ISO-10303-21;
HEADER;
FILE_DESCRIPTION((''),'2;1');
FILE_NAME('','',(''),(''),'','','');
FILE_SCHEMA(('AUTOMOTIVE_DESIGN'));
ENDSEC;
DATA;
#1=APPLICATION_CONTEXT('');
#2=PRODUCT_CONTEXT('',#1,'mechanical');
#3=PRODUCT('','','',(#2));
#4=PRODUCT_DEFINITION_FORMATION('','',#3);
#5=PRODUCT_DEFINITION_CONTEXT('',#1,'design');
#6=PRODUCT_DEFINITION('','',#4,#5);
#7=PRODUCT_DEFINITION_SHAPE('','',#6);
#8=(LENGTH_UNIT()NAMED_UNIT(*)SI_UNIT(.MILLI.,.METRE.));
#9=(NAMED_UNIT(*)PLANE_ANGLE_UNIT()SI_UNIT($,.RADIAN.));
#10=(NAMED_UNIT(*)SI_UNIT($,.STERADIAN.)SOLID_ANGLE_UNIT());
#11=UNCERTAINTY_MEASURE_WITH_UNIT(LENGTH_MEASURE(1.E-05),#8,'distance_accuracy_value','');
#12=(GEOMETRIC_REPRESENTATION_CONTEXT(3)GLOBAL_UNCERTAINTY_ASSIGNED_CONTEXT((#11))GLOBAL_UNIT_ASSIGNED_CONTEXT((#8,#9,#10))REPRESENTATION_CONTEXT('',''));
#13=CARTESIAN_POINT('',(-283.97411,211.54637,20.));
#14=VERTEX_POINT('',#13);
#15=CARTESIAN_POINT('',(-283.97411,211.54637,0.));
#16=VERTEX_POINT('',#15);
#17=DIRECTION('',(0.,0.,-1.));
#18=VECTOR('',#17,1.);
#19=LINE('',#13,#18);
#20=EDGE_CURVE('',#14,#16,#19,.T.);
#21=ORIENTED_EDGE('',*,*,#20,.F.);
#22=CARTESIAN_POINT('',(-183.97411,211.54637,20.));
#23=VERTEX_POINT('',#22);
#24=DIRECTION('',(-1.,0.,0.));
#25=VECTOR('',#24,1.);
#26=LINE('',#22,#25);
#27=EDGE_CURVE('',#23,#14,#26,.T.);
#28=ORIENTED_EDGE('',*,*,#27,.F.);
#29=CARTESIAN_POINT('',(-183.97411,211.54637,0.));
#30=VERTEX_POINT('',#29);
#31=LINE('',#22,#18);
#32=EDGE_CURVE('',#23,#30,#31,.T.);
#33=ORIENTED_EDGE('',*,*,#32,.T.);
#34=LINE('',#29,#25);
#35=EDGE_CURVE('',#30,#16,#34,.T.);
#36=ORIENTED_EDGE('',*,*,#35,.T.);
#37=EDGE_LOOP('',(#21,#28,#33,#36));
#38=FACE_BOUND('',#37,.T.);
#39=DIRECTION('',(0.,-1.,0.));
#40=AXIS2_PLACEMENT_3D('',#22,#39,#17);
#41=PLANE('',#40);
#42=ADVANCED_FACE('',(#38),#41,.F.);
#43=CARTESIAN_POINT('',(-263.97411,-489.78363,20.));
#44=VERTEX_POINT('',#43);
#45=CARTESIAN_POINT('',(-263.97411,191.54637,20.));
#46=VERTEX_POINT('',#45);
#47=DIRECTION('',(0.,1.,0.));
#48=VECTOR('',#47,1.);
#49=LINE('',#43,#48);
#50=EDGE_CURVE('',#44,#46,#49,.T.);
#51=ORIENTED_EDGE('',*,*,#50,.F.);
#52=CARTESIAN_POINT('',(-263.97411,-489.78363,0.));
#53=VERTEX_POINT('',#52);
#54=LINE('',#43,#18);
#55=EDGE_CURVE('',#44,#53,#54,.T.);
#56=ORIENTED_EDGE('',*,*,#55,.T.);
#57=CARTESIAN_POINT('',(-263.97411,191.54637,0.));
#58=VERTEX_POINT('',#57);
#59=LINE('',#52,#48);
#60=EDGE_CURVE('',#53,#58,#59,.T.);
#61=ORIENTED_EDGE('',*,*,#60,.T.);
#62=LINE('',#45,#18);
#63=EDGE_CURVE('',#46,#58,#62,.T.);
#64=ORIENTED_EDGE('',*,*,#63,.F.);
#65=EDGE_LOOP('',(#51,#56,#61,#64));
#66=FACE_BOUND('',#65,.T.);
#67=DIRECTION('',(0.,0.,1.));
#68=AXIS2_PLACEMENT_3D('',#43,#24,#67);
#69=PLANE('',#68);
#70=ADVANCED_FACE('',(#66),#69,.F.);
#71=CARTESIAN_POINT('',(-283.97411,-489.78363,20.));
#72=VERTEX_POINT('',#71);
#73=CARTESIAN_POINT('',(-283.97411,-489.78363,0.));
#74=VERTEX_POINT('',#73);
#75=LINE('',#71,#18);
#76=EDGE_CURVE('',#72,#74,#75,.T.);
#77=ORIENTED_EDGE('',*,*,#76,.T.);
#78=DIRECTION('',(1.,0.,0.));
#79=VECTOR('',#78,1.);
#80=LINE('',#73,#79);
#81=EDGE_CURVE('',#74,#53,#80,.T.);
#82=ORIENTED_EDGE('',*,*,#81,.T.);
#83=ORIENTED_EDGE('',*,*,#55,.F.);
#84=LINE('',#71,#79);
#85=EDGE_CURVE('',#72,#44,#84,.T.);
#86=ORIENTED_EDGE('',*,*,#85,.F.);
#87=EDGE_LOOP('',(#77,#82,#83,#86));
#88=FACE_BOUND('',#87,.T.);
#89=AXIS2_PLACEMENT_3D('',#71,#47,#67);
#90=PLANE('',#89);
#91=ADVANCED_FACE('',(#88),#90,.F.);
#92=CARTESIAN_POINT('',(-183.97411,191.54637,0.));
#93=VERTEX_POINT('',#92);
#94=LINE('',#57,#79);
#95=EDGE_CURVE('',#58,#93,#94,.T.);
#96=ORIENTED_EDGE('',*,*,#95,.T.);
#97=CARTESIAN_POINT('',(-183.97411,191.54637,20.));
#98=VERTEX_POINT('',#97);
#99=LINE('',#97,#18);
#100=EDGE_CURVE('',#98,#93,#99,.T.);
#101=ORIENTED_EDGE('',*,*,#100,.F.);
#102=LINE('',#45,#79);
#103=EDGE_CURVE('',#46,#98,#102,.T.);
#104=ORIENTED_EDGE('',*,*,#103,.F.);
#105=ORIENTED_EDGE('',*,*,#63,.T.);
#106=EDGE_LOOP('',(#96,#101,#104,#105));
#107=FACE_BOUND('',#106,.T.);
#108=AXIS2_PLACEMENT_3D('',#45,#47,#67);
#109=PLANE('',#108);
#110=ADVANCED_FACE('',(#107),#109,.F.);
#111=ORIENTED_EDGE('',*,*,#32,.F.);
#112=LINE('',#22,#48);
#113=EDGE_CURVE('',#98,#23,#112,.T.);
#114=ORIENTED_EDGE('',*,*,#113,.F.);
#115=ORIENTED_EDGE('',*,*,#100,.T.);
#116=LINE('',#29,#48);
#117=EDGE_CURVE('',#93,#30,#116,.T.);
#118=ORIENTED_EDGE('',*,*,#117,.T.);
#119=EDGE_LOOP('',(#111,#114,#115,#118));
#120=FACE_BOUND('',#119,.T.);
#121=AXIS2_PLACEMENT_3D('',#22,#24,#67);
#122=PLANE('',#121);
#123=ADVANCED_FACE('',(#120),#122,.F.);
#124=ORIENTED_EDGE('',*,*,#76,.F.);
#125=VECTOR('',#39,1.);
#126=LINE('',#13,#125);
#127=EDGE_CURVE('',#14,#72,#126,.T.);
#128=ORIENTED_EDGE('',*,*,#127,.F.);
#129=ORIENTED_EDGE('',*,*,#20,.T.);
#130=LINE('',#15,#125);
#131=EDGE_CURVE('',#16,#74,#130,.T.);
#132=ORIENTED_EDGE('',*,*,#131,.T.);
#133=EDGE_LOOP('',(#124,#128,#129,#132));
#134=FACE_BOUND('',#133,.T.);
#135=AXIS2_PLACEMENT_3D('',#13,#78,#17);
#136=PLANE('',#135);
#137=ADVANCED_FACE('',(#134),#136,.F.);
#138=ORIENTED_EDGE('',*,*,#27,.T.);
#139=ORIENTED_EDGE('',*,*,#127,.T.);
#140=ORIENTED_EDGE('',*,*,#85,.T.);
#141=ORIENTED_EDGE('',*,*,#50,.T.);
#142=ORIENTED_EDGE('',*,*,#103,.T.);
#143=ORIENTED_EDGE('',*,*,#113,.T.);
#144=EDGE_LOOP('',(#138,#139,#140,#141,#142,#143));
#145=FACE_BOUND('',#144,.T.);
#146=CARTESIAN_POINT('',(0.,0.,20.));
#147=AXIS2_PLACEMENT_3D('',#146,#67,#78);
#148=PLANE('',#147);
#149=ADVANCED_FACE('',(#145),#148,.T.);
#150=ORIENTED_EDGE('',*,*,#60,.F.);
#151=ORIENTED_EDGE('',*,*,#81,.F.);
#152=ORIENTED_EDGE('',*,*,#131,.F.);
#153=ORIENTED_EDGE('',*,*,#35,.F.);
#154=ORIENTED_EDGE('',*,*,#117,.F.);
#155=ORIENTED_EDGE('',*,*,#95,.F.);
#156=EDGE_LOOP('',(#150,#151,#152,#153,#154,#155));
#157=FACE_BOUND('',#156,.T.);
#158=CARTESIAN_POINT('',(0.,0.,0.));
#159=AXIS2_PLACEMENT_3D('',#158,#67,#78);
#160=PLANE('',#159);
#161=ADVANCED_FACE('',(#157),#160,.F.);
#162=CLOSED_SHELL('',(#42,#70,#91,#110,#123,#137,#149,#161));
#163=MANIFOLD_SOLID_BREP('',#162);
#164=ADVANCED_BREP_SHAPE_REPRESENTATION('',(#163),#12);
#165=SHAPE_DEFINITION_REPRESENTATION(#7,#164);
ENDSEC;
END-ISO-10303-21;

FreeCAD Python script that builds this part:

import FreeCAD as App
import Part
import Sketcher

V = App.Vector


def add_polygon(sketch, points):
    """Adds a closed chain of lines whose ends are joined by coincident constraints."""
    first, n = sketch.GeometryCount, len(points)
    for a, b in zip(points, points[1:] + points[:1]):
        sketch.addGeometry(Part.LineSegment(App.Vector(*a, 0), App.Vector(*b, 0)), False)
    for i in range(n):
        sketch.addConstraint(Sketcher.Constraint("Coincident", first + i, 2, first + (i + 1) % n, 1))

doc = App.newDocument("Part")
body = doc.addObject("PartDesign::Body", "Body")

# Sketch on XY plane
sketch1 = body.newObject("Sketcher::SketchObject", "Sketch")
sketch1.AttachmentSupport = (doc.getObject("XY_Plane"), [""])
sketch1.MapMode = "FlatFace"
add_polygon(sketch1, [(-183.97411, 211.54637), (-283.97411, 211.54637), (-283.97411, -489.78363), (-263.97411, -489.78363), (-263.97411, 191.54637), (-183.97411, 191.54637)])  # lines 0-5
sketch1.addConstraint([
    Sketcher.Constraint("Horizontal", 0),
    Sketcher.Constraint("Vertical", 1),
    Sketcher.Constraint("Horizontal", 2),
    Sketcher.Constraint("Vertical", 3),
    Sketcher.Constraint("Horizontal", 4),
    Sketcher.Constraint("Vertical", 5),
    Sketcher.Constraint("Equal", 2, 5),
    Sketcher.Constraint("DistanceX", 0, 2, 0, 1, 100.0),
    Sketcher.Constraint("DistanceX", 2, 1, 2, 2, 20.0),
    Sketcher.Constraint("DistanceY", 1, 2, 1, 1, 701.33),
    Sketcher.Constraint("DistanceX", 0, 2, -1, 1, 283.97411),
    Sketcher.Constraint("DistanceY", -1, 1, 0, 2, 211.54637),
])
pad1 = body.newObject("PartDesign::Pad", "Pad")
pad1.Profile = sketch1
pad1.Length = 20

doc.recompute()
